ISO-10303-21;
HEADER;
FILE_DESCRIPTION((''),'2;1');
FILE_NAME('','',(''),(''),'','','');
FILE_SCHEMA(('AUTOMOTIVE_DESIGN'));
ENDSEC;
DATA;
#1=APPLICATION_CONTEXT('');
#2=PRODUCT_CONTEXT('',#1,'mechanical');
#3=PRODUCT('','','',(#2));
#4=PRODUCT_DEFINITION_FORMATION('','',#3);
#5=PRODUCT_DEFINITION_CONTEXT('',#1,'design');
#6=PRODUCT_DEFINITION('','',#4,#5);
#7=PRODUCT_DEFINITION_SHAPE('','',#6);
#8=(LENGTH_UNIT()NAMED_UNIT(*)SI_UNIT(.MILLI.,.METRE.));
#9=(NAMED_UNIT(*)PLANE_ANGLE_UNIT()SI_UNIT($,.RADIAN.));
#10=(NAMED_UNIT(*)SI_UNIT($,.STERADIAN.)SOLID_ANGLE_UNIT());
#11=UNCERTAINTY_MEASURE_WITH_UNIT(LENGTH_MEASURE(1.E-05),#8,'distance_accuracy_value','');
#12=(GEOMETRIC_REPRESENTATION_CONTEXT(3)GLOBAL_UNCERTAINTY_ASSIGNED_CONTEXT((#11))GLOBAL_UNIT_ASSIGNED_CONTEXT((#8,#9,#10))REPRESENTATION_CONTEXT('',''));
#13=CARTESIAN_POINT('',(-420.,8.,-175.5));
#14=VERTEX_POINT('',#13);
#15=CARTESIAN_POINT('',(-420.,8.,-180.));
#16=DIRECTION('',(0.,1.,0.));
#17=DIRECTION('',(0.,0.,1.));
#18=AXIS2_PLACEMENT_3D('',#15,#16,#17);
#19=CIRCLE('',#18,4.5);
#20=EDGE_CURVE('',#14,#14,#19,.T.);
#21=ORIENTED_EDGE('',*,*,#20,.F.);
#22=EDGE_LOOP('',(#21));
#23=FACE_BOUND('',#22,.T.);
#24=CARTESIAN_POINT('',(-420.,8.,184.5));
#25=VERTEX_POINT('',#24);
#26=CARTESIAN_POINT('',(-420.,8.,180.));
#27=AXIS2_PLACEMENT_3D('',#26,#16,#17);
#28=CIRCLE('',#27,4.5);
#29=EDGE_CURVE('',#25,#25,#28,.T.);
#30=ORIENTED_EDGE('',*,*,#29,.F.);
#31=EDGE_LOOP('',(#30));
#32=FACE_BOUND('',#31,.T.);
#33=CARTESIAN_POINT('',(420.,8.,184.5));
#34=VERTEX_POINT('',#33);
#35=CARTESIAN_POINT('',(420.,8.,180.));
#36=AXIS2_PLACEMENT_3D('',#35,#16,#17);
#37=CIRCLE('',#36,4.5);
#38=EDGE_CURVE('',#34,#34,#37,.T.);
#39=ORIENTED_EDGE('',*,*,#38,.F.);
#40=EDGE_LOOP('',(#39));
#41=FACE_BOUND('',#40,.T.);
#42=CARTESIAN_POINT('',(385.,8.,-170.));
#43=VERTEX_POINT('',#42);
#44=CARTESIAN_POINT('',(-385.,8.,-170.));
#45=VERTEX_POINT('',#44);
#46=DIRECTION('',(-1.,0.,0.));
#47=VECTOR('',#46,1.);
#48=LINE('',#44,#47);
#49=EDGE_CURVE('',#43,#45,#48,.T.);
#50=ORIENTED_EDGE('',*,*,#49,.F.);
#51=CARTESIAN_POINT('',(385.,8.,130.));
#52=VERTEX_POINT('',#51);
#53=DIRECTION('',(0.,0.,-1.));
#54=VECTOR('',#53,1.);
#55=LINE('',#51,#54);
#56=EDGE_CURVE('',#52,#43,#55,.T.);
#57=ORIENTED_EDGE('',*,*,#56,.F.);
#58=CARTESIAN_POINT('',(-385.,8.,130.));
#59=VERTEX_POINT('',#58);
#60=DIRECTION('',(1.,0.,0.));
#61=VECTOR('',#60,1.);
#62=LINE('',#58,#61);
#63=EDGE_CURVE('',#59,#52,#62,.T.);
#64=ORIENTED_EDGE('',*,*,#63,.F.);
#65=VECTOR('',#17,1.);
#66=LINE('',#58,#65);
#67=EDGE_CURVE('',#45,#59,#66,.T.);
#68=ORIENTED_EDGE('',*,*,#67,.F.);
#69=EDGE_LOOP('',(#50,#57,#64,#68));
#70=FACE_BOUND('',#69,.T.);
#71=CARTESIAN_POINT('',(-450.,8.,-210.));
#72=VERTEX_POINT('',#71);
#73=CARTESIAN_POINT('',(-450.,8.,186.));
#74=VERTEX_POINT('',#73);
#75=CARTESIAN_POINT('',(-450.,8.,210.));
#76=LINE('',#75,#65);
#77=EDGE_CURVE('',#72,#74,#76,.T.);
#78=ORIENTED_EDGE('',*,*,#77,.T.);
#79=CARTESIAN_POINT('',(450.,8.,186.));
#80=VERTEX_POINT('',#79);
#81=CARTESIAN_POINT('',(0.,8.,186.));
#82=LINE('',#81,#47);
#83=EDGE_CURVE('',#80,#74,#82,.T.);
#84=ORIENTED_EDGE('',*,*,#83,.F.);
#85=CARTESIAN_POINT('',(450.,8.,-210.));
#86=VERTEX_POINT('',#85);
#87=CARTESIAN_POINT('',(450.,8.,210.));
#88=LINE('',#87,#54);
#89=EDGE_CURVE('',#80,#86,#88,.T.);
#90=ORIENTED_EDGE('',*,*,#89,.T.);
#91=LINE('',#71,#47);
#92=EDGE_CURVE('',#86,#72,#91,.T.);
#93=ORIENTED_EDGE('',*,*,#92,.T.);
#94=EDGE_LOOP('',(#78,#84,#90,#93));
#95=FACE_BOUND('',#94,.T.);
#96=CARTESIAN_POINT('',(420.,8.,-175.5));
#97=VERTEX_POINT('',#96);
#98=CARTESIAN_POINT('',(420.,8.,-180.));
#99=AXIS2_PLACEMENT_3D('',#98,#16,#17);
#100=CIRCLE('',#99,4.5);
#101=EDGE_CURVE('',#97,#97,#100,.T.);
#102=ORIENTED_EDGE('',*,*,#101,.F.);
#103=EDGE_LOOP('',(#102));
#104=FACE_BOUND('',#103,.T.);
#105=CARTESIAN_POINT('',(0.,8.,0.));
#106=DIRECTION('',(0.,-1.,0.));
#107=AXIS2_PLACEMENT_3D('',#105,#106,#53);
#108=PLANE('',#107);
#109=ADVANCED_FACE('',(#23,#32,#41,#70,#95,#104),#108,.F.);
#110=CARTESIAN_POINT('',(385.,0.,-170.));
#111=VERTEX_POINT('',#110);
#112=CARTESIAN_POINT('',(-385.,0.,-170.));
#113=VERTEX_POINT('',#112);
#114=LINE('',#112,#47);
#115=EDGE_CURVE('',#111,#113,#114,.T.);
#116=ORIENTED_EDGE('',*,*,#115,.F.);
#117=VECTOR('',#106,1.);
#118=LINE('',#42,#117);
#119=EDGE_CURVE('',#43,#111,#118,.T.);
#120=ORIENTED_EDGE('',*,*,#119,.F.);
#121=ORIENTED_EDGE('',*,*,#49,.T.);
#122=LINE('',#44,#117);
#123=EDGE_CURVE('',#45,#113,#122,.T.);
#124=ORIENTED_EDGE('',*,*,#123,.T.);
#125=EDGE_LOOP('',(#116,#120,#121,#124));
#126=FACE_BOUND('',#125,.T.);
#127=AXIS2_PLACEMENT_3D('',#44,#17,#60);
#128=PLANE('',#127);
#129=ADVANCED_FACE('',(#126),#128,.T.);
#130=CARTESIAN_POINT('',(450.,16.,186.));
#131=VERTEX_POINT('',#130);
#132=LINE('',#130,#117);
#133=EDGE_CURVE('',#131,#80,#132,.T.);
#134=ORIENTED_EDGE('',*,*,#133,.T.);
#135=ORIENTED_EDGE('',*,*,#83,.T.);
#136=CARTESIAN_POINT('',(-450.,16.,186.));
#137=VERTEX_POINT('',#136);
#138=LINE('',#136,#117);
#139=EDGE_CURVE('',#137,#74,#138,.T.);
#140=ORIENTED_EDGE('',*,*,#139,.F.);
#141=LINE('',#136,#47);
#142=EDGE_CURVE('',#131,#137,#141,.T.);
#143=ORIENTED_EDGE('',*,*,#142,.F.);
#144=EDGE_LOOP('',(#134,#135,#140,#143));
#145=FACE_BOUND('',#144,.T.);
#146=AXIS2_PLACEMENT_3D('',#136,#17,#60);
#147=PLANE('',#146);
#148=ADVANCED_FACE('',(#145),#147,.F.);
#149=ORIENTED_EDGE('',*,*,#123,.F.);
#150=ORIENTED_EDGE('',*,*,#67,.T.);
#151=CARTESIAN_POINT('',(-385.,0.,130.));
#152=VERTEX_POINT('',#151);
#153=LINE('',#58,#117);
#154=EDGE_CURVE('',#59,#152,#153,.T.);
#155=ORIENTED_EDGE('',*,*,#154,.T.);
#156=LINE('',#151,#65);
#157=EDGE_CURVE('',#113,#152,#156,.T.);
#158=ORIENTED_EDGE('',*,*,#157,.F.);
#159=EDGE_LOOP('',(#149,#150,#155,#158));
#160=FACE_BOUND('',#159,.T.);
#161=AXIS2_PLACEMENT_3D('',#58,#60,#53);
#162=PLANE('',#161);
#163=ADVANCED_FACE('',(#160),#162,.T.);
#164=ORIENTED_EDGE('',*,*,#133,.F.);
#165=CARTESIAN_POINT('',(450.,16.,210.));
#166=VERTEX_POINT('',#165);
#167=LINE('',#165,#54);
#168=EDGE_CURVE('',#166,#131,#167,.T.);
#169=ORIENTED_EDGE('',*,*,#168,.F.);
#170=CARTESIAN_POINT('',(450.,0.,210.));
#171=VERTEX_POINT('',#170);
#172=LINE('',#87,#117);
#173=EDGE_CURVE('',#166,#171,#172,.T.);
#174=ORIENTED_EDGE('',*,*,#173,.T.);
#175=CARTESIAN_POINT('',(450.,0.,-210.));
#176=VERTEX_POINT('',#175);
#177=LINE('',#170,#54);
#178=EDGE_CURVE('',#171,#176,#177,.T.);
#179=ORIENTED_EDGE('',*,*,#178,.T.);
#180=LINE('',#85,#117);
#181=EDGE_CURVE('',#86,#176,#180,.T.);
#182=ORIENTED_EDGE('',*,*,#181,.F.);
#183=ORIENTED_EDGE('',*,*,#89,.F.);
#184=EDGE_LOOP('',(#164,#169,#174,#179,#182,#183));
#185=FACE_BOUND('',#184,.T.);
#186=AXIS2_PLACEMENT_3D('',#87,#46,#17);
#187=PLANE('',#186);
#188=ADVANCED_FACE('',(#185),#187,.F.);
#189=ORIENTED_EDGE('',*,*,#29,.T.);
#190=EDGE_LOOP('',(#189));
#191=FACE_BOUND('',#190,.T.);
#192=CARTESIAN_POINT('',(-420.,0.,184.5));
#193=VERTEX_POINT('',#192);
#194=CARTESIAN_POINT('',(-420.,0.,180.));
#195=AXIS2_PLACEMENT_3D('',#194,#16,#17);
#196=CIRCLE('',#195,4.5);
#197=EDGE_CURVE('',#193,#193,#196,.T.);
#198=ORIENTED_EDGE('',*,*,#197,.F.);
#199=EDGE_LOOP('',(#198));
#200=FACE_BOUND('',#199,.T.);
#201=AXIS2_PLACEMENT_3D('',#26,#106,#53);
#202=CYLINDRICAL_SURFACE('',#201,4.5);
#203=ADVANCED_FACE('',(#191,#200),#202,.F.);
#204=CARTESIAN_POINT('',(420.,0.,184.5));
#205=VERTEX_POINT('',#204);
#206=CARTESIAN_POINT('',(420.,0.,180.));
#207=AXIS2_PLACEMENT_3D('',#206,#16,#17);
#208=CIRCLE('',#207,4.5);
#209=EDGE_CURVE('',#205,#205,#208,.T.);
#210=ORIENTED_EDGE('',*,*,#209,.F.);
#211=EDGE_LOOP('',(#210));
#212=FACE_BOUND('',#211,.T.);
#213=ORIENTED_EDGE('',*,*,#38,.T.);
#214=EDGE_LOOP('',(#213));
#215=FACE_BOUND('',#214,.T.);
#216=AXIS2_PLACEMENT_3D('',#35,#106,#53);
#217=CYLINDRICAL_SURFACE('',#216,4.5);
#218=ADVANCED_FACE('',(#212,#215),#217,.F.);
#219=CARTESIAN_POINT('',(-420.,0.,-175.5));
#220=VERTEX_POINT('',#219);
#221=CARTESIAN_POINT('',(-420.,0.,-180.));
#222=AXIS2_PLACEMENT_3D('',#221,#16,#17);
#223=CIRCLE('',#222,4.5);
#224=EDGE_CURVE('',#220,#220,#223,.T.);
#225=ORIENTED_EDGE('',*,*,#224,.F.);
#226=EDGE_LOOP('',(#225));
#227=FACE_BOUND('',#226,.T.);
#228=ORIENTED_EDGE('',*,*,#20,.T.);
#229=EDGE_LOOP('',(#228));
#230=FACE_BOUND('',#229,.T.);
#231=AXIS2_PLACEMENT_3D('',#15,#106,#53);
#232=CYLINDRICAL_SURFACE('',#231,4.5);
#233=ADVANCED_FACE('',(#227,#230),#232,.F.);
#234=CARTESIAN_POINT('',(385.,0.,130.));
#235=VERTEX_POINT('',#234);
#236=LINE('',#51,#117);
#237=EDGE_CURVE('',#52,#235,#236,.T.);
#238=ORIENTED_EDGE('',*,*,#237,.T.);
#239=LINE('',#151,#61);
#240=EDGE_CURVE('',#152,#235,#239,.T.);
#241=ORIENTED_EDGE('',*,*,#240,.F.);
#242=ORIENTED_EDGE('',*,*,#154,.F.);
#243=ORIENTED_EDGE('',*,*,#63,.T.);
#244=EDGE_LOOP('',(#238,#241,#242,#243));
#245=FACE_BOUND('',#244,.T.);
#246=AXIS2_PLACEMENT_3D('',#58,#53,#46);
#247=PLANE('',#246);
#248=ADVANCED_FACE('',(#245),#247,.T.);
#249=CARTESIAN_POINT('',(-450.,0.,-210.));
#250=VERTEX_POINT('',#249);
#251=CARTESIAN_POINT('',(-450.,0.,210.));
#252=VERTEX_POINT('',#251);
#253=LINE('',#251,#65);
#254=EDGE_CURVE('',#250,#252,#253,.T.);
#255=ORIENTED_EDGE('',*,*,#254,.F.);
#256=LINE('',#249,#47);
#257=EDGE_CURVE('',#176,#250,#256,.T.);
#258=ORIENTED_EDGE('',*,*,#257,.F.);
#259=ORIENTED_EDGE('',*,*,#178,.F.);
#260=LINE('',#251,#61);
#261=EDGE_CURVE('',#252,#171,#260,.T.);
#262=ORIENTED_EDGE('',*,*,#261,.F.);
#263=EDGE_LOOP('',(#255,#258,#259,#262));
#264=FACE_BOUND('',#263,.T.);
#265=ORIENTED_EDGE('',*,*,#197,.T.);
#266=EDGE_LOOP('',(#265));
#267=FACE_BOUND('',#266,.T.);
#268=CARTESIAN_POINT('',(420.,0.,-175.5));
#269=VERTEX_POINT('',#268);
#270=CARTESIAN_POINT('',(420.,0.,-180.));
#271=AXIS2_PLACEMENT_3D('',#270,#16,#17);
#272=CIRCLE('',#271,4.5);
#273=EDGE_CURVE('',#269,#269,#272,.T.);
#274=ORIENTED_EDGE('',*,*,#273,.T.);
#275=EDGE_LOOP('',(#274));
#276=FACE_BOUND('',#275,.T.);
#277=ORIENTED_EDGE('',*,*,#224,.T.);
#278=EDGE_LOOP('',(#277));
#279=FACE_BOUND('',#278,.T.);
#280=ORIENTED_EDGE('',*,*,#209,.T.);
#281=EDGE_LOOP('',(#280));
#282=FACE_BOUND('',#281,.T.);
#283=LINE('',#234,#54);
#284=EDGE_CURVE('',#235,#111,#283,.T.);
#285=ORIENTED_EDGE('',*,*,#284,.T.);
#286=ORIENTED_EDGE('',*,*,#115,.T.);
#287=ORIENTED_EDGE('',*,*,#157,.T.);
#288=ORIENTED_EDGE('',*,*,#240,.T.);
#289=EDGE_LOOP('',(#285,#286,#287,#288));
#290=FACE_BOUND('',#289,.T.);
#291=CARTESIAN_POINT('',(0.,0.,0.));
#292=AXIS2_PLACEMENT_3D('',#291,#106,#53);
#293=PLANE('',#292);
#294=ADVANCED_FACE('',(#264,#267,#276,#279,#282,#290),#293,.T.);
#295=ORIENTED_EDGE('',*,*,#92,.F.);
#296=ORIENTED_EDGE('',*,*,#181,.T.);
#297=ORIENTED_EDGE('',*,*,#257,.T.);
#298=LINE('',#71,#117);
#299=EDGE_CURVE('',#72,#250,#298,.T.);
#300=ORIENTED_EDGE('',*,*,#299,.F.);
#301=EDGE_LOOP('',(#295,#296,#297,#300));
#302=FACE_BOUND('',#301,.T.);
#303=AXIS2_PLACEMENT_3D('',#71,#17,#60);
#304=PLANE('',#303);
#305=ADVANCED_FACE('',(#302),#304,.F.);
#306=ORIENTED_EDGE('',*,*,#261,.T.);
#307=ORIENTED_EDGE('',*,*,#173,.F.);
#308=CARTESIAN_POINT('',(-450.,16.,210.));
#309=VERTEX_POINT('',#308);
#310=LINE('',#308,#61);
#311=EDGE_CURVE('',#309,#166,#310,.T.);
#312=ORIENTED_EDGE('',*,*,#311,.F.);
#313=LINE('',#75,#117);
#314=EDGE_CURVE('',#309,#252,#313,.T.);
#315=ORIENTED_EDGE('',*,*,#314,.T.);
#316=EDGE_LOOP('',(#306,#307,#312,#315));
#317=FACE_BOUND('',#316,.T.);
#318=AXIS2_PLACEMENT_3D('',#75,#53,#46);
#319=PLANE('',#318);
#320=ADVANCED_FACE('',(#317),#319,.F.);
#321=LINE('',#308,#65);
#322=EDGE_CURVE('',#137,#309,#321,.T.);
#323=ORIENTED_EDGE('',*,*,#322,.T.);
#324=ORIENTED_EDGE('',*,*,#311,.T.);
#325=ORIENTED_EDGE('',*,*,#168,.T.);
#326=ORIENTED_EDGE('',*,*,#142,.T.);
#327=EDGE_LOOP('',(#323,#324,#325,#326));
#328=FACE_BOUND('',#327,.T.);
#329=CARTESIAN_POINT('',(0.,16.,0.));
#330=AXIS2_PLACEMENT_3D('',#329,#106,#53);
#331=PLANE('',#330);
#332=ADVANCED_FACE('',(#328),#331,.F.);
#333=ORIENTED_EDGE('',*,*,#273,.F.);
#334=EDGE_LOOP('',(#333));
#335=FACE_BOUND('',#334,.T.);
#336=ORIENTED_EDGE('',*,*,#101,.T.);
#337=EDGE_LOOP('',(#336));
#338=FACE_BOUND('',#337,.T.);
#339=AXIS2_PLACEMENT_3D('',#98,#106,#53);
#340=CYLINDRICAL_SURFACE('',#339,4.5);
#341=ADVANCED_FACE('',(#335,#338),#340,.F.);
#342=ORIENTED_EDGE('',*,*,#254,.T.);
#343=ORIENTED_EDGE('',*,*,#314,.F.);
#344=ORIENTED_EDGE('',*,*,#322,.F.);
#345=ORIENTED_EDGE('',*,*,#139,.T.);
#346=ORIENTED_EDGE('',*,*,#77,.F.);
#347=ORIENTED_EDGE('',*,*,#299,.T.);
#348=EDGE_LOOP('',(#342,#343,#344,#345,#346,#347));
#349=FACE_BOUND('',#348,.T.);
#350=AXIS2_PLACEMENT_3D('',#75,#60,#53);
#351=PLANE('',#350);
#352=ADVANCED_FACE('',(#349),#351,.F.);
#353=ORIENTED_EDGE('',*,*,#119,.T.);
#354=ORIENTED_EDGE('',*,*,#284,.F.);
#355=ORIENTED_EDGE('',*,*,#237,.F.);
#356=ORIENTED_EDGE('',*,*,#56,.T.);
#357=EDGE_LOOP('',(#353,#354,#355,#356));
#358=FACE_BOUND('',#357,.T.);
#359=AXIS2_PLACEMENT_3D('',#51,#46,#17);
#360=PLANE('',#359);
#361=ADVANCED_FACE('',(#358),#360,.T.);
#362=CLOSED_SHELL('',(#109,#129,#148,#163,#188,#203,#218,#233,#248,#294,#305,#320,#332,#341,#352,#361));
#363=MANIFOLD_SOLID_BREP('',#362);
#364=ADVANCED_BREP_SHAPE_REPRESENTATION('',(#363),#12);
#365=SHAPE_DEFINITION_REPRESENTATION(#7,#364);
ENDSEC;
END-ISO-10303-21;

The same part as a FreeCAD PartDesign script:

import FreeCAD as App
import Part
import Sketcher
from FreeCAD import Vector


def add_polygon(sketch, points):
    """Adds a closed chain of lines whose ends are joined by coincident constraints."""
    first, n = sketch.GeometryCount, len(points)
    for a, b in zip(points, points[1:] + points[:1]):
        sketch.addGeometry(Part.LineSegment(App.Vector(*a, 0), App.Vector(*b, 0)), False)
    for i in range(n):
        sketch.addConstraint(Sketcher.Constraint("Coincident", first + i, 2, first + (i + 1) % n, 1))

doc = App.newDocument("Part")
body = doc.addObject("PartDesign::Body", "Body")

sketch1 = body.newObject("Sketcher::SketchObject", "Sketch")
sketch1.AttachmentSupport = (doc.getObject("XZ_Plane"), [""])
sketch1.MapMode = "FlatFace"
add_polygon(sketch1, [(-450, -210), (-450, 210), (450, 210), (450, -210)])
sketch1.addGeometry(Part.Circle(Vector(-420, 180, 0), Vector(0, 0, 1), 4.5), False)
sketch1.addGeometry(Part.Circle(Vector(420, 180, 0), Vector(0, 0, 1), 4.5), False)
add_polygon(sketch1, [(385, 130), (-385, 130), (-385, -170), (385, -170)])
sketch1.addGeometry(Part.Circle(Vector(-420, -180, 0), Vector(0, 0, 1), 4.5), False)
sketch1.addGeometry(Part.Circle(Vector(420, -180, 0), Vector(0, 0, 1), 4.5), False)
sketch1.addConstraint([
    Sketcher.Constraint("Vertical", 0),
    Sketcher.Constraint("Horizontal", 1),
    Sketcher.Constraint("Vertical", 2),
    Sketcher.Constraint("Horizontal", 3),
    Sketcher.Constraint("Horizontal", 6),
    Sketcher.Constraint("Vertical", 7),
    Sketcher.Constraint("Horizontal", 8),
    Sketcher.Constraint("Vertical", 9),
    Sketcher.Constraint("Equal", 4, 5),
    Sketcher.Constraint("Equal", 5, 10),
    Sketcher.Constraint("Equal", 10, 11),
    Sketcher.Constraint("Symmetric", 5, 3, 10, 3, -1, 1),
    Sketcher.Constraint("Symmetric", 4, 3, 11, 3, -1, 1),
    Sketcher.Constraint("Symmetric", 0, 2, 2, 2, -1, 1),
    Sketcher.Constraint("Symmetric", 4, 3, 5, 3, -2),
    Sketcher.Constraint("Diameter", 4, 9.0),
    Sketcher.Constraint("DistanceX", 1, 1, 1, 2, 900.0),
    Sketcher.Constraint("DistanceX", 6, 2, 6, 1, 770.0),
    Sketcher.Constraint("DistanceY", 0, 1, 0, 2, 420.0),
    Sketcher.Constraint("DistanceY", 7, 2, 7, 1, 300.0),
    Sketcher.Constraint("DistanceX", 4, 3, -1, 1, 420.0),
    Sketcher.Constraint("DistanceY", -1, 1, 4, 3, 180.0),
    Sketcher.Constraint("DistanceX", 6, 2, -1, 1, 385.0),
    Sketcher.Constraint("DistanceY", -1, 1, 6, 2, 130.0),
])
pad1 = body.newObject("PartDesign::Pad", "Pad")
pad1.Profile = sketch1
pad1.Length = 8
pad1.Reversed = True

sketch2 = body.newObject("Sketcher::SketchObject", "Sketch001")
sketch2.AttachmentSupport = (doc.getObject("XZ_Plane"), [""])
sketch2.MapMode = "FlatFace"
add_polygon(sketch2, [(-450, 186), (-450, 210), (450, 210), (450, 186)])
sketch2.addConstraint([
    Sketcher.Constraint("Vertical", 0),
    Sketcher.Constraint("Horizontal", 1),
    Sketcher.Constraint("Vertical", 2),
    Sketcher.Constraint("Horizontal", 3),
    Sketcher.Constraint("DistanceX", 1, 1, 1, 2, 900.0),
    Sketcher.Constraint("DistanceY", 0, 1, 0, 2, 24.0),
    Sketcher.Constraint("DistanceX", 0, 2, -1, 1, 450.0),
    Sketcher.Constraint("DistanceY", -1, 1, 0, 2, 210.0),
])
pad2 = body.newObject("PartDesign::Pad", "Pad001")
pad2.Profile = sketch2
pad2.Length = 16
pad2.Reversed = True

doc.recompute()
